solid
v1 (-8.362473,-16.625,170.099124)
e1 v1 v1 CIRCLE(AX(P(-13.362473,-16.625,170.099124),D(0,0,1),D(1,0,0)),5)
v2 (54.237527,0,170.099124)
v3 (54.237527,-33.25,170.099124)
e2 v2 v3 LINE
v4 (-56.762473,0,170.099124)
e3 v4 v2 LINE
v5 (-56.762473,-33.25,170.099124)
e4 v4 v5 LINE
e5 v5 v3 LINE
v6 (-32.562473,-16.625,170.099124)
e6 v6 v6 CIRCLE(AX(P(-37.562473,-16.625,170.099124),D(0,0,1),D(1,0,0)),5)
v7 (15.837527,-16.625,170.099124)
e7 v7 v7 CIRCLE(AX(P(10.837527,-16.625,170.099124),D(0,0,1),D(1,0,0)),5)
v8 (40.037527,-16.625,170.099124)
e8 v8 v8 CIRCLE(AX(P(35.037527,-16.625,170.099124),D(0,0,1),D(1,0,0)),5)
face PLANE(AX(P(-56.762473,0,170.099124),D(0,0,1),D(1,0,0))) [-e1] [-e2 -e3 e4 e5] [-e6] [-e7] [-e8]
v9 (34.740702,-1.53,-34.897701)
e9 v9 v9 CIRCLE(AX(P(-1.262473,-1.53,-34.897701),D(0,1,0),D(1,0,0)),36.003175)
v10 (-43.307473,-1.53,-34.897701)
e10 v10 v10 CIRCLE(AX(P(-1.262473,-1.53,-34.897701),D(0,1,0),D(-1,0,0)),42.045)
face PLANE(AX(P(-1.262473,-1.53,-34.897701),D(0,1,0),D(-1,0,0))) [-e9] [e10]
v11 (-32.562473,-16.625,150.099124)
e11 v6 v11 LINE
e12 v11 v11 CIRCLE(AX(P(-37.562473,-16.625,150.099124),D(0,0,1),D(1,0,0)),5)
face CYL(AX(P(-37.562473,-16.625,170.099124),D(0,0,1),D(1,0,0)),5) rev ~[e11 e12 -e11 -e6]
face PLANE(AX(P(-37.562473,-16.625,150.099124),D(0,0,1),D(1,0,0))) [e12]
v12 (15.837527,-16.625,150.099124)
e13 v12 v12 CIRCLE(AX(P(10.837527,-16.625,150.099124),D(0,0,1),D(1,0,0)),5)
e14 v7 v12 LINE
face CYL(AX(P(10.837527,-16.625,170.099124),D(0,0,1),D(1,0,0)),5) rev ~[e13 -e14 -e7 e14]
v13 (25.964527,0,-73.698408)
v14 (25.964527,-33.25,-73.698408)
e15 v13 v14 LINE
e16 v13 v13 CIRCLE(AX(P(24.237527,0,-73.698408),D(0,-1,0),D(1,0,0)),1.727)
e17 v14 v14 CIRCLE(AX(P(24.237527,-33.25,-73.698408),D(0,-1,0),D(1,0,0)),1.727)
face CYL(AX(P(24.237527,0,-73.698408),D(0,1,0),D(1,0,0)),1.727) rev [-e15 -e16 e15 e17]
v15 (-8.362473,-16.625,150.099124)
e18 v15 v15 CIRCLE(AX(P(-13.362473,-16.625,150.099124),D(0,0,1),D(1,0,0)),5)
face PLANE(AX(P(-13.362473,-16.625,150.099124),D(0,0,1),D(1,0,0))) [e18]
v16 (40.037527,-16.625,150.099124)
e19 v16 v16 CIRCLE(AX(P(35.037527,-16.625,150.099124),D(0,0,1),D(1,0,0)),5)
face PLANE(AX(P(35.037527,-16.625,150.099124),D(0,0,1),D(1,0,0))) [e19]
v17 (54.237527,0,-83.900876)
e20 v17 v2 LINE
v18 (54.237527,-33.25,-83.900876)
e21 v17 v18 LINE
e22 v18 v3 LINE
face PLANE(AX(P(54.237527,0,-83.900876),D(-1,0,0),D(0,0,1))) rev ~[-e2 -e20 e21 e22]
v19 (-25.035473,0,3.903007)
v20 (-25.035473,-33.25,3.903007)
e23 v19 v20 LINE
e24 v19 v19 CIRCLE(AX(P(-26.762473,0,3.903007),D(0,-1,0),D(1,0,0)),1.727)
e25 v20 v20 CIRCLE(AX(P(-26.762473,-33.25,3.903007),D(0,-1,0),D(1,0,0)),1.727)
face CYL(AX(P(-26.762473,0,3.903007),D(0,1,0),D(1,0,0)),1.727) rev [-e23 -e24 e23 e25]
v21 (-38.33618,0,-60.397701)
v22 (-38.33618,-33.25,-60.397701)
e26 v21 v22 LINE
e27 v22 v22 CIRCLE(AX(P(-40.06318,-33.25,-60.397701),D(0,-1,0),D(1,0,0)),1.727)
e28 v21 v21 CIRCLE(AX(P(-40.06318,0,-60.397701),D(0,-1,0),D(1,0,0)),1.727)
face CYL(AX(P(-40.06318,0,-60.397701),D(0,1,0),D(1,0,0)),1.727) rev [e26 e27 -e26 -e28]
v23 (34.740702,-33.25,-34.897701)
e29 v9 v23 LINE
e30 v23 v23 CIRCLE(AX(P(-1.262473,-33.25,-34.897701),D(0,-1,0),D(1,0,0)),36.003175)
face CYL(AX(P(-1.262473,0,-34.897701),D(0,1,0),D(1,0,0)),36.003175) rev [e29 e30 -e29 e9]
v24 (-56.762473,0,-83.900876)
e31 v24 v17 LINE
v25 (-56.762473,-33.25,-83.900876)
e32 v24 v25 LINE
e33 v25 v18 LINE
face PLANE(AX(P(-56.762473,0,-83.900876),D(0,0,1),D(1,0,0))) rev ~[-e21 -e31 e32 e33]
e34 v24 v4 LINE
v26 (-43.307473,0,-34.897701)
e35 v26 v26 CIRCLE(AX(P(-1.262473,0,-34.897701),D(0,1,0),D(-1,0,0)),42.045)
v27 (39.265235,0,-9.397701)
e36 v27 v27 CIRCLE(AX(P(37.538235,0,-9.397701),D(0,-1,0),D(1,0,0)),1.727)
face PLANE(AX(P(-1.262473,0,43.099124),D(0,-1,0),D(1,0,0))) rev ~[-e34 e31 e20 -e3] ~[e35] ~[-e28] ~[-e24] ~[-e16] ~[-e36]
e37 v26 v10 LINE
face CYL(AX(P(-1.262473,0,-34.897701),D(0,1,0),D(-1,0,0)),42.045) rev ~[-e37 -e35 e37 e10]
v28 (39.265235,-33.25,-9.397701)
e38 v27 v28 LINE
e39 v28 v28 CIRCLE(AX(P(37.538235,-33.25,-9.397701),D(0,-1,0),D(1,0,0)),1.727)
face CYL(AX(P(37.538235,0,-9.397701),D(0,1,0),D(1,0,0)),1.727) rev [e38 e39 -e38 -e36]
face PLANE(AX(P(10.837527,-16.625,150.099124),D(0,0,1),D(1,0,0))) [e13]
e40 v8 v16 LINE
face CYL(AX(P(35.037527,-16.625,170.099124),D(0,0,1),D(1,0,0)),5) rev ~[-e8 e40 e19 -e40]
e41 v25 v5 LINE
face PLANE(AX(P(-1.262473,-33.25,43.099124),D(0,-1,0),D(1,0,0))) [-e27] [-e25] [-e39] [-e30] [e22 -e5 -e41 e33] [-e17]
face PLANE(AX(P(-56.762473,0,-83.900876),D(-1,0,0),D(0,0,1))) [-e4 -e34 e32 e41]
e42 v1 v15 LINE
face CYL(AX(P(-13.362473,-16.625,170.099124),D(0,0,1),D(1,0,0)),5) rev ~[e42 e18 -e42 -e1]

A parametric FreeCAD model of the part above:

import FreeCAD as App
import Part
import Sketcher
Q = App.Units.Quantity


def add_polygon(sketch, points):
    """Adds a closed chain of lines whose ends are joined by coincident constraints."""
    first, n = sketch.GeometryCount, len(points)
    for a, b in zip(points, points[1:] + points[:1]):
        sketch.addGeometry(Part.LineSegment(App.Vector(*a, 0), App.Vector(*b, 0)), False)
    for i in range(n):
        sketch.addConstraint(Sketcher.Constraint("Coincident", first + i, 2, first + (i + 1) % n, 1))

doc = App.newDocument("Part")
body = doc.addObject("PartDesign::Body", "Body")

# Sketch on XZ plane
sketch1 = body.newObject("Sketcher::SketchObject", "Sketch")
sketch1.AttachmentSupport = (doc.getObject("XZ_Plane"), [""])
sketch1.MapMode = "FlatFace"
add_polygon(sketch1, [(-56.762473, 170.099124), (-56.762473, -83.900876), (54.237527, -83.900876), (54.237527, 170.099124)])  # lines 0-3
sketch1.addGeometry(Part.Circle(App.Vector(-40.06318, -60.397701, 0), App.Vector(0, 0, 1), 1.727), False)  # 4
sketch1.addGeometry(Part.Circle(App.Vector(-1.262473, -34.897701, 0), App.Vector(0, 0, 1), 36.003175), False)  # 5
sketch1.addGeometry(Part.Circle(App.Vector(24.237527, -73.698408, 0), App.Vector(0, 0, 1), 1.727), False)  # 6
sketch1.addGeometry(Part.Circle(App.Vector(-26.762473, 3.903007, 0), App.Vector(0, 0, 1), 1.727), False)  # 7
sketch1.addGeometry(Part.Circle(App.Vector(37.538235, -9.397701, 0), App.Vector(0, 0, 1), 1.727), False)  # 8
sketch1.addConstraint([
    Sketcher.Constraint("Vertical", 0),
    Sketcher.Constraint("Horizontal", 1),
    Sketcher.Constraint("Vertical", 2),
    Sketcher.Constraint("Horizontal", 3),
    Sketcher.Constraint("Equal", 4, 6),
    Sketcher.Constraint("Equal", 6, 7),
    Sketcher.Constraint("Equal", 7, 8),
    Sketcher.Constraint("DistanceX", 1, 1, 1, 2, Q("111 mm")),
    Sketcher.Constraint("DistanceY", 0, 2, 0, 1, Q("254 mm")),
    Sketcher.Constraint("Diameter", 4, Q("3.454 mm")),
    Sketcher.Constraint("DistanceX", 7, 3, 6, 3, Q("51 mm")),
    Sketcher.Constraint("DistanceY", 4, 3, 8, 3, Q("51 mm")),
    Sketcher.Constraint("DistanceX", 0, 2, 6, 3, Q("81 mm")),
    Sketcher.Constraint("DistanceY", 4, 3, 5, 3, Q("25.5 mm")),
    Sketcher.Constraint("DistanceX", 5, 3, 6, 3, Q("25.5 mm")),
    Sketcher.Constraint("Diameter", 5, Q("72.00635 mm")),
    Sketcher.Constraint("DistanceY", 4, 3, -1, 1, Q("60.397701 mm")),
    Sketcher.Constraint("DistanceX", 4, 3, -1, 1, Q("40.06318 mm")),
    Sketcher.Constraint("DistanceY", 6, 3, -1, 1, Q("73.698408 mm")),
    Sketcher.Constraint("DistanceY", 4, 3, 7, 3, Q("64.300708 mm")),
    Sketcher.Constraint("DistanceX", 7, 3, 8, 3, Q("64.300708 mm")),
    Sketcher.Constraint("DistanceY", 6, 3, 2, 2, Q("243.797532 mm")),
    Sketcher.Constraint("DistanceX", 5, 3, -1, 1, Q("1.262473 mm")),
])
pad1 = body.newObject("PartDesign::Pad", "Pad")
pad1.Profile = sketch1
pad1.Length = 33.25

# Sketch on XZ plane
sketch2 = body.newObject("Sketcher::SketchObject", "Sketch001")
sketch2.AttachmentSupport = (doc.getObject("XZ_Plane"), [""])
sketch2.MapMode = "FlatFace"
sketch2.addGeometry(Part.Circle(App.Vector(-1.262473, -34.897701, 0), App.Vector(0, 0, 1), 42.045), False)
sketch2.addConstraint([
    Sketcher.Constraint("Diameter", 0, Q("84.09 mm")),
    Sketcher.Constraint("DistanceY", 0, 3, -1, 1, Q("34.897701 mm")),
    Sketcher.Constraint("DistanceX", 0, 3, -1, 1, Q("1.262473 mm")),
])
pocket1 = body.newObject("PartDesign::Pocket", "Pocket")
pocket1.Profile = sketch2
pocket1.Length = 1.53
pocket1.Reversed = True

# Sketch on XY plane
sketch3 = body.newObject("Sketcher::SketchObject", "Sketch002")
sketch3.AttachmentSupport = (doc.getObject("XY_Plane"), [""])
sketch3.MapMode = "FlatFace"
sketch3.AttachmentOffset = App.Placement(App.Vector(0, 0, 170.099124), App.Rotation())
sketch3.addGeometry([
    Part.Circle(App.Vector(-37.562473, -16.625, 0), App.Vector(0, 0, 1), 5),
    Part.Circle(App.Vector(-13.362473, -16.625, 0), App.Vector(0, 0, 1), 5),
    Part.Circle(App.Vector(10.837527, -16.625, 0), App.Vector(0, 0, 1), 5),
    Part.Circle(App.Vector(35.037527, -16.625, 0), App.Vector(0, 0, 1), 5),
], False)
sketch3.addConstraint([
    Sketcher.Constraint("Equal", 0, 1),
    Sketcher.Constraint("Equal", 1, 2),
    Sketcher.Constraint("Equal", 2, 3),
    Sketcher.Constraint("Horizontal", 0, 3, 1, 3),
    Sketcher.Constraint("Horizontal", 1, 3, 2, 3),
    Sketcher.Constraint("Horizontal", 2, 3, 3, 3),
    Sketcher.Constraint("Diameter", 0, Q("10 mm")),
    Sketcher.Constraint("DistanceX", 0, 3, 1, 3, Q("24.2 mm")),
    Sketcher.Constraint("DistanceX", 1, 3, 2, 3, Q("24.2 mm")),
    Sketcher.Constraint("DistanceX", 2, 3, 3, 3, Q("24.2 mm")),
    Sketcher.Constraint("DistanceY", 0, 3, -1, 1, Q("16.625 mm")),
    Sketcher.Constraint("DistanceX", 0, 3, -1, 1, Q("37.562473 mm")),
])
pocket2 = body.newObject("PartDesign::Pocket", "Pocket001")
pocket2.Profile = sketch3
pocket2.Length = 20

doc.recompute()
